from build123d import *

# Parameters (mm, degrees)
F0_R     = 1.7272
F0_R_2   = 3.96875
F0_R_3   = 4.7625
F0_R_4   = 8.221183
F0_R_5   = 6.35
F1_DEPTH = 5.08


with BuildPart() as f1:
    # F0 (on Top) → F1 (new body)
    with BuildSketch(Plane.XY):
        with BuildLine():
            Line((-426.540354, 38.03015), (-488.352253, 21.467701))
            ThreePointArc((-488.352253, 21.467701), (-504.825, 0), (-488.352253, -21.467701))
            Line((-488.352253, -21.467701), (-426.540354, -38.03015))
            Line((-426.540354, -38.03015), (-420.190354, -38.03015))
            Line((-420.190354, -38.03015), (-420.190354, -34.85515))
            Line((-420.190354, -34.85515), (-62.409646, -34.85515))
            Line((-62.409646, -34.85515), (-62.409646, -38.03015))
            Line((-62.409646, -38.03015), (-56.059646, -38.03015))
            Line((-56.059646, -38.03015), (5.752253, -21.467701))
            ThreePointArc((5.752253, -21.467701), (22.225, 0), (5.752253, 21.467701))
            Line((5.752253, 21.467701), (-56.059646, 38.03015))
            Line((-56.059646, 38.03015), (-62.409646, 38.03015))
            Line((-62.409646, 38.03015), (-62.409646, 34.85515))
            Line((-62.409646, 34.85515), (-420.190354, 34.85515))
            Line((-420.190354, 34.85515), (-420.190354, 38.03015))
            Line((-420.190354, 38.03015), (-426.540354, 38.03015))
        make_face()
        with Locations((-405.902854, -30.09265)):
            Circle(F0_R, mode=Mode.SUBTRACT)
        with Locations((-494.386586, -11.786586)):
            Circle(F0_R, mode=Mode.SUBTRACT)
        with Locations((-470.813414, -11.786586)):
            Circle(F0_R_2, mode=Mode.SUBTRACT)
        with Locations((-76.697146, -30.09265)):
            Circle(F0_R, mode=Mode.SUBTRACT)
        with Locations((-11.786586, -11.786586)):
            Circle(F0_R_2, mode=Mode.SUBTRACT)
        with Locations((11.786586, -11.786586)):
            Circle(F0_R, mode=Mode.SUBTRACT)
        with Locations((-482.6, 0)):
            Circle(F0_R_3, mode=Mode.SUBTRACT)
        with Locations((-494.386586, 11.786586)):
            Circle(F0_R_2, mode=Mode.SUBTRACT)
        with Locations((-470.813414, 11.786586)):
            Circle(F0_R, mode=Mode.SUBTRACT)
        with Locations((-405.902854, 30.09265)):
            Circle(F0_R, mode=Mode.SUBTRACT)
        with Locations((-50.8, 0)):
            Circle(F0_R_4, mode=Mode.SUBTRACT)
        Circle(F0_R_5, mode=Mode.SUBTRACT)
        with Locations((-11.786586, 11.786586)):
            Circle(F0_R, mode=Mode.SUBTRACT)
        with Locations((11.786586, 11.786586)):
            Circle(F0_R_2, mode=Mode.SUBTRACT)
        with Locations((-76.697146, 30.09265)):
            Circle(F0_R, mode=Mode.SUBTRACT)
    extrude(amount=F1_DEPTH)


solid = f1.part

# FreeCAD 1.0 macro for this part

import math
import FreeCAD as App
import Part
import Sketcher

V = App.Vector
Q = App.Units.Quantity

doc = App.newDocument("Part")
params = doc.addObject("Spreadsheet::Sheet", "Params")
for row, (alias, value) in enumerate([
    ("sketch1_diameter", "0.5 in"),
    ("sketch1_diameter2", "0.136 in"),
    ("sketch1_diameter3", "0.3125 in"),
    ("sketch1_diameter4", "0.375 in"),
    ("sketch1_radius", "0.875 in"),
    ("pad1_length", "0.2 in"),
], start=1):
    params.set(f"A{row}", alias)
    params.set(f"B{row}", "=" + value)
    params.setAlias(f"B{row}", alias)

body = doc.addObject("PartDesign::Body", "Body")

sketch1 = body.newObject("Sketcher::SketchObject", "Sketch")
sketch1.AttachmentSupport = (doc.getObject("XY_Plane"), [""])
sketch1.MapMode = "FlatFace"
sketch1.addGeometry(Part.LineSegment(V(-426.5, 38, 0), V(-488.4, 21.5, 0)), False)
sketch1.addGeometry(Part.ArcOfCircle(Part.Circle(V(-482.6, 0, 0), V(0, 0, 1), 22.2), math.radians(105), math.radians(255)), False)
sketch1.addGeometry(Part.LineSegment(V(-488.4, -21.5, 0), V(-426.5, -38, 0)), False)
sketch1.addGeometry(Part.LineSegment(V(-426.5, -38, 0), V(-420.2, -38, 0)), False)
sketch1.addGeometry(Part.LineSegment(V(-420.2, -38, 0), V(-420.2, -34.9, 0)), False)
sketch1.addGeometry(Part.LineSegment(V(-420.2, -34.9, 0), V(-62.4, -34.9, 0)), False)
sketch1.addGeometry(Part.LineSegment(V(-62.4, -34.9, 0), V(-62.4, -38, 0)), False)
sketch1.addGeometry(Part.LineSegment(V(-62.4, -38, 0), V(-56.1, -38, 0)), False)
sketch1.addGeometry(Part.LineSegment(V(-56.1, -38, 0), V(5.8, -21.5, 0)), False)
sketch1.addGeometry(Part.ArcOfCircle(Part.Circle(V(0, 0, 0), V(0, 0, 1), 22.2), math.radians(-75), math.radians(75)), False)
sketch1.addGeometry(Part.LineSegment(V(5.8, 21.5, 0), V(-56.1, 38, 0)), False)
sketch1.addGeometry(Part.LineSegment(V(-56.1, 38, 0), V(-62.4, 38, 0)), False)
sketch1.addGeometry(Part.LineSegment(V(-62.4, 38, 0), V(-62.4, 34.9, 0)), False)
sketch1.addGeometry(Part.LineSegment(V(-62.4, 34.9, 0), V(-420.2, 34.9, 0)), False)
sketch1.addGeometry(Part.LineSegment(V(-420.2, 34.9, 0), V(-420.2, 38, 0)), False)
sketch1.addGeometry(Part.LineSegment(V(-420.2, 38, 0), V(-426.5, 38, 0)), False)
sketch1.addGeometry(Part.Circle(V(-405.9, -30.1, 0), V(0, 0, 1), 1.7), False)
sketch1.addGeometry(Part.Circle(V(-494.4, -11.8, 0), V(0, 0, 1), 1.7), False)
sketch1.addGeometry(Part.Circle(V(-470.8, -11.8, 0), V(0, 0, 1), 4), False)
sketch1.addGeometry(Part.Circle(V(-482.6, 0, 0), V(0, 0, 1), 4.8), False)
sketch1.addGeometry(Part.Circle(V(-76.7, -30.1, 0), V(0, 0, 1), 1.7), False)
sketch1.addGeometry(Part.Circle(V(-11.8, -11.8, 0), V(0, 0, 1), 4), False)
sketch1.addGeometry(Part.Circle(V(11.8, -11.8, 0), V(0, 0, 1), 1.7), False)
sketch1.addGeometry(Part.Circle(V(-50.8, 0, 0), V(0, 0, 1), 8.2), False)
sketch1.addGeometry(Part.Circle(V(0, 0, 0), V(0, 0, 1), 6.3), False)
sketch1.addGeometry(Part.Circle(V(-494.4, 11.8, 0), V(0, 0, 1), 4), False)
sketch1.addGeometry(Part.Circle(V(-470.8, 11.8, 0), V(0, 0, 1), 1.7), False)
sketch1.addGeometry(Part.Circle(V(-405.9, 30.1, 0), V(0, 0, 1), 1.7), False)
sketch1.addGeometry(Part.Circle(V(-11.8, 11.8, 0), V(0, 0, 1), 1.7), False)
sketch1.addGeometry(Part.Circle(V(11.8, 11.8, 0), V(0, 0, 1), 4), False)
sketch1.addGeometry(Part.Circle(V(-76.7, 30.1, 0), V(0, 0, 1), 1.7), False)
sketch1.addConstraint(Sketcher.Constraint("Tangent", 0, 2, 1, 1))
sketch1.addConstraint(Sketcher.Constraint("Tangent", 1, 2, 2, 1))
sketch1.addConstraint(Sketcher.Constraint("Coincident", 2, 2, 3, 1))
sketch1.addConstraint(Sketcher.Constraint("Coincident", 3, 2, 4, 1))
sketch1.addConstraint(Sketcher.Constraint("Coincident", 4, 2, 5, 1))
sketch1.addConstraint(Sketcher.Constraint("Coincident", 5, 2, 6, 1))
sketch1.addConstraint(Sketcher.Constraint("Coincident", 6, 2, 7, 1))
sketch1.addConstraint(Sketcher.Constraint("Coincident", 7, 2, 8, 1))
sketch1.addConstraint(Sketcher.Constraint("Tangent", 8, 2, 9, 1))
sketch1.addConstraint(Sketcher.Constraint("Tangent", 9, 2, 10, 1))
sketch1.addConstraint(Sketcher.Constraint("Coincident", 10, 2, 11, 1))
sketch1.addConstraint(Sketcher.Constraint("Coincident", 11, 2, 12, 1))
sketch1.addConstraint(Sketcher.Constraint("Coincident", 12, 2, 13, 1))
sketch1.addConstraint(Sketcher.Constraint("Coincident", 13, 2, 14, 1))
sketch1.addConstraint(Sketcher.Constraint("Coincident", 14, 2, 15, 1))
sketch1.addConstraint(Sketcher.Constraint("Coincident", 15, 2, 0, 1))
sketch1.addConstraint(Sketcher.Constraint("Horizontal", 3))
sketch1.addConstraint(Sketcher.Constraint("Vertical", 4))
sketch1.addConstraint(Sketcher.Constraint("Horizontal", 5))
sketch1.addConstraint(Sketcher.Constraint("Vertical", 6))
sketch1.addConstraint(Sketcher.Constraint("Horizontal", 7))
sketch1.addConstraint(Sketcher.Constraint("Horizontal", 11))
sketch1.addConstraint(Sketcher.Constraint("Vertical", 12))
sketch1.addConstraint(Sketcher.Constraint("Horizontal", 13))
sketch1.addConstraint(Sketcher.Constraint("Vertical", 14))
sketch1.addConstraint(Sketcher.Constraint("Horizontal", 15))
sketch1.addConstraint(Sketcher.Constraint("Coincident", 9, 3, -1, 1))
sketch1.addConstraint(Sketcher.Constraint("Coincident", 24, 3, -1, 1))
sketch1.addConstraint(Sketcher.Constraint("Coincident", 19, 3, 1, 3))
sketch1.addConstraint(Sketcher.Constraint("Equal", 1, 9))
sketch1.addConstraint(Sketcher.Constraint("Equal", 16, 17))
sketch1.addConstraint(Sketcher.Constraint("Equal", 17, 20))
sketch1.addConstraint(Sketcher.Constraint("Equal", 18, 21))
sketch1.addConstraint(Sketcher.Constraint("Equal", 20, 22))
sketch1.addConstraint(Sketcher.Constraint("Equal", 21, 25))
sketch1.addConstraint(Sketcher.Constraint("Equal", 22, 26))
sketch1.addConstraint(Sketcher.Constraint("Equal", 26, 27))
sketch1.addConstraint(Sketcher.Constraint("Equal", 27, 28))
sketch1.addConstraint(Sketcher.Constraint("Equal", 25, 29))
sketch1.addConstraint(Sketcher.Constraint("Equal", 28, 30))
sketch1.addConstraint(Sketcher.Constraint("Symmetric", 22, 3, 28, 3, -1, 1))
sketch1.addConstraint(Sketcher.Constraint("Symmetric", 21, 3, 29, 3, -1, 1))
sketch1.addConstraint(Sketcher.Constraint("Symmetric", 21, 3, 22, 3, -2))
sketch1.addConstraint(Sketcher.Constraint("Symmetric", 17, 3, 25, 3, -1))
sketch1.addConstraint(Sketcher.Constraint("Symmetric", 18, 3, 26, 3, -1))
sketch1.addConstraint(Sketcher.Constraint("Symmetric", 16, 3, 27, 3, -1))
sketch1.addConstraint(Sketcher.Constraint("Symmetric", 20, 3, 30, 3, -1))
sketch1.addConstraint(Sketcher.Constraint("Symmetric", 0, 2, 1, 2, -1))
sketch1.addConstraint(Sketcher.Constraint("Symmetric", 7, 2, 10, 2, -1))
sketch1.addConstraint(Sketcher.Constraint("Symmetric", 5, 2, 12, 2, -1))
sketch1.addConstraint(Sketcher.Constraint("Symmetric", 3, 2, 14, 2, -1))
sketch1.addConstraint(Sketcher.Constraint("PointOnObject", 23, 3, -1))
sketch1.addConstraint(Sketcher.Constraint("Parallel", 0, 8))
sketch1.addConstraint(Sketcher.Constraint("Horizontal", 17, 3, 18, 3))
sketch1.addConstraint(Sketcher.Constraint("Horizontal", 16, 3, 20, 3))
sketch1.addConstraint(Sketcher.Constraint("Horizontal", 18, 3, 21, 3))
sketch1.addConstraint(Sketcher.Constraint("Horizontal", 3, 2, 6, 2))
sketch1.addConstraint(Sketcher.Constraint("Equal", 3, 7))
sketch1.addConstraint(Sketcher.Constraint("Diameter", 24, Q("0.5 in")))
sketch1.addConstraint(Sketcher.Constraint("Diameter", 16, Q("0.136 in")))
sketch1.addConstraint(Sketcher.Constraint("Diameter", 18, Q("0.3125 in")))
sketch1.addConstraint(Sketcher.Constraint("Diameter", 19, Q("0.375 in")))
sketch1.addConstraint(Sketcher.Constraint("DistanceX", 1, 3, -1, 1, Q("19 in")))
sketch1.addConstraint(Sketcher.Constraint("DistanceX", 23, 3, -1, 1, Q("2 in")))
sketch1.addConstraint(Sketcher.Constraint("Angle", 0, Q("-164.999999 deg")))
sketch1.addConstraint(Sketcher.Constraint("Radius", 1, Q("0.875 in")))
sketch1.addConstraint(Sketcher.Constraint("DistanceX", 18, 3, 22, 3, Q("19 in")))
sketch1.addConstraint(Sketcher.Constraint("DistanceX", 3, 1, 3, 2, Q("0.25 in")))
sketch1.addConstraint(Sketcher.Constraint("DistanceY", 4, 1, 4, 2, Q("0.125 in")))
sketch1.addConstraint(Sketcher.Constraint("DistanceX", 2, 2, 16, 3, Q("0.8125 in")))
sketch1.addConstraint(Sketcher.Constraint("DistanceY", 2, 2, 16, 3, Q("0.3125 in")))
sketch1.addConstraint(Sketcher.Constraint("DistanceY", 3, 2, 27, 3, Q("2.682 in")))
sketch1.addConstraint(Sketcher.Constraint("DistanceX", 20, 3, 5, 2, Q("0.5625 in")))
sketch1.addConstraint(Sketcher.Constraint("Diameter", 23, Q("16.442366 mm")))
sketch1.addConstraint(Sketcher.Constraint("DistanceX", 17, 3, 18, 3, Q("23.573172 mm")))
sketch1.addConstraint(Sketcher.Constraint("DistanceX", 18, 3, 16, 3, Q("64.91056 mm")))
sketch1.addConstraint(Sketcher.Constraint("DistanceY", 17, 3, 25, 3, Q("23.573172 mm")))
sketch1.setExpression("Constraints[58]", "Params.sketch1_diameter")
sketch1.setExpression("Constraints[59]", "Params.sketch1_diameter2")
sketch1.setExpression("Constraints[60]", "Params.sketch1_diameter3")
sketch1.setExpression("Constraints[61]", "Params.sketch1_diameter4")
sketch1.setExpression("Constraints[65]", "Params.sketch1_radius")
pad1 = body.newObject("PartDesign::Pad", "Pad")
pad1.Profile = sketch1
pad1.setExpression("Length", "Params.pad1_length")

doc.recompute()
